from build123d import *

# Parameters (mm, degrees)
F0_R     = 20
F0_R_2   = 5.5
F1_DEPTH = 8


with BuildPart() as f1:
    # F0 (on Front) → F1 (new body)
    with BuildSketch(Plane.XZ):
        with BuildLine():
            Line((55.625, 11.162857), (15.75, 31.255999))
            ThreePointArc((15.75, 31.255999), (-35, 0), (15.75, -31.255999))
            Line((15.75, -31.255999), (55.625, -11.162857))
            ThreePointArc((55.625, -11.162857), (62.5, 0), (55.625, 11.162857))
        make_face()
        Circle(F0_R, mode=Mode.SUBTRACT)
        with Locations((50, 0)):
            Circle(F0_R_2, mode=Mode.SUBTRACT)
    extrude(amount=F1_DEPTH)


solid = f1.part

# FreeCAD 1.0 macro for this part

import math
import FreeCAD as App
import Part
import Sketcher

V = App.Vector
Q = App.Units.Quantity

doc = App.newDocument("Part")
body = doc.addObject("PartDesign::Body", "Body")

# Sketch on XZ plane
sketch1 = body.newObject("Sketcher::SketchObject", "Sketch")
sketch1.AttachmentSupport = (doc.getObject("XZ_Plane"), [""])
sketch1.MapMode = "FlatFace"
sketch1.addGeometry(Part.LineSegment(V(55.625, 11.162857, 0), V(15.75, 31.255999, 0)), False)
sketch1.addGeometry(Part.ArcOfCircle(Part.Circle(V(0, 0, 0), V(0, 0, 1), 35), math.radians(63.256315), math.radians(296.743685)), False)
sketch1.addGeometry(Part.LineSegment(V(15.75, -31.255999, 0), V(55.625, -11.162857, 0)), False)
sketch1.addGeometry(Part.ArcOfCircle(Part.Circle(V(50, 0, 0), V(0, 0, 1), 12.5), math.radians(-63.256316), math.radians(63.256316)), False)
sketch1.addGeometry(Part.Circle(V(0, 0, 0), V(0, 0, 1), 20), False)
sketch1.addGeometry(Part.Circle(V(50, 0, 0), V(0, 0, 1), 5.5), False)
sketch1.addConstraint(Sketcher.Constraint("Tangent", 0, 2, 1, 1))
sketch1.addConstraint(Sketcher.Constraint("Tangent", 1, 2, 2, 1))
sketch1.addConstraint(Sketcher.Constraint("Tangent", 2, 2, 3, 1))
sketch1.addConstraint(Sketcher.Constraint("Tangent", 3, 2, 0, 1))
sketch1.addConstraint(Sketcher.Constraint("Coincident", 1, 3, -1, 1))
sketch1.addConstraint(Sketcher.Constraint("Coincident", 4, 3, -1, 1))
sketch1.addConstraint(Sketcher.Constraint("Coincident", 5, 3, 3, 3))
sketch1.addConstraint(Sketcher.Constraint("PointOnObject", 3, 3, -1))
sketch1.addConstraint(Sketcher.Constraint("Diameter", 4, Q("40 mm")))
sketch1.addConstraint(Sketcher.Constraint("Diameter", 5, Q("11 mm")))
sketch1.addConstraint(Sketcher.Constraint("Radius", 1, Q("35 mm")))
sketch1.addConstraint(Sketcher.Constraint("Radius", 3, Q("12.5 mm")))
sketch1.addConstraint(Sketcher.Constraint("DistanceX", -1, 1, 3, 3, Q("50 mm")))
pad1 = body.newObject("PartDesign::Pad", "Pad")
pad1.Profile = sketch1
pad1.Length = 8

doc.recompute()
